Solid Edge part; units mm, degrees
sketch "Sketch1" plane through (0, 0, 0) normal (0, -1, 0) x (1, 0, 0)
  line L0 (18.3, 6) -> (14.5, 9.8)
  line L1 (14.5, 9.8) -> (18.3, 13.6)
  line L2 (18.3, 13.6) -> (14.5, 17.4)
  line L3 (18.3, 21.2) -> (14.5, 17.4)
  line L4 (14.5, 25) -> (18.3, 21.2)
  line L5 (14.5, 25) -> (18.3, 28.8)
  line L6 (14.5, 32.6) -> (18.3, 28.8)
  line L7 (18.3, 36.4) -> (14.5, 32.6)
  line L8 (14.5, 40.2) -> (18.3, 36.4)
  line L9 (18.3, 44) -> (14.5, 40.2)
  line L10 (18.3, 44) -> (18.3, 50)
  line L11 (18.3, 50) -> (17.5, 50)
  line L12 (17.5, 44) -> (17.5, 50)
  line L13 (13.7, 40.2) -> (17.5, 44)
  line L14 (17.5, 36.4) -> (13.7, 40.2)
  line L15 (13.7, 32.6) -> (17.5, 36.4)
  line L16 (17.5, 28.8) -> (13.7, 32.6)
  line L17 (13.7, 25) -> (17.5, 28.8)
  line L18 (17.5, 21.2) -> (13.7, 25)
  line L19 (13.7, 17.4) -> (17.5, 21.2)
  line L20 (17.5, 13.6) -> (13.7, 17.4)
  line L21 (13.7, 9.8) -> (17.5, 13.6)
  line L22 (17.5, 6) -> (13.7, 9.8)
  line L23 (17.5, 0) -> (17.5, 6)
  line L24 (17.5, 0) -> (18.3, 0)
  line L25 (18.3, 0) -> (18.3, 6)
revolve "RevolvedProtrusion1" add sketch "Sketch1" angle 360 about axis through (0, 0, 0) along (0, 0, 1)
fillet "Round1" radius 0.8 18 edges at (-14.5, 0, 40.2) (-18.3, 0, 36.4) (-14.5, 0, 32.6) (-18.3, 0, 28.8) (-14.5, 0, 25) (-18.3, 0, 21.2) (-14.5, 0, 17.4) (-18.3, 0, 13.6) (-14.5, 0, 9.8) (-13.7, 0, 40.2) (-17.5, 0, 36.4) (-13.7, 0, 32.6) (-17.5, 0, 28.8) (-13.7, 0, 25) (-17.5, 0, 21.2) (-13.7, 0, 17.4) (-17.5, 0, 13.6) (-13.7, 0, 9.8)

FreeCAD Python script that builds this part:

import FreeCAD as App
import Part
import Sketcher
from FreeCAD import Vector
Q = App.Units.Quantity


def edges_at(feature, points):
    """Names of the edges that pass closest to the given points."""
    edges = feature.Shape.Edges
    near = lambda p: min(range(len(edges)), key=lambda i: edges[i].distToShape(Part.Vertex(*p))[0])
    return sorted({f"Edge{near(p) + 1}" for p in points})

doc = App.newDocument("Part")
body = doc.addObject("PartDesign::Body", "Body")

# Sketch on XZ plane
sketch1 = doc.addObject("Sketcher::SketchObject", "Sketch")
body.addObject(sketch1)
sketch1.AttachmentSupport = (doc.XZ_Plane, [""])
sketch1.MapMode = "FlatFace"
sketch1.addGeometry([
    Part.LineSegment(Vector(18.3, 0, 0), Vector(18.3, 6, 0)),  # 0
    Part.LineSegment(Vector(18.3, 6, 0), Vector(14.5, 9.8, 0)),  # 1
    Part.LineSegment(Vector(14.5, 9.8, 0), Vector(18.3, 13.6, 0)),  # 2
    Part.LineSegment(Vector(18.3, 13.6, 0), Vector(14.5, 17.4, 0)),  # 3
    Part.LineSegment(Vector(14.5, 17.4, 0), Vector(18.3, 21.2, 0)),  # 4
    Part.LineSegment(Vector(18.3, 21.2, 0), Vector(14.5, 25, 0)),  # 5
    Part.LineSegment(Vector(14.5, 25, 0), Vector(18.3, 28.8, 0)),  # 6
    Part.LineSegment(Vector(18.3, 28.8, 0), Vector(14.5, 32.6, 0)),  # 7
    Part.LineSegment(Vector(14.5, 32.6, 0), Vector(18.3, 36.4, 0)),  # 8
    Part.LineSegment(Vector(18.3, 36.4, 0), Vector(14.5, 40.2, 0)),  # 9
    Part.LineSegment(Vector(14.5, 40.2, 0), Vector(18.3, 44, 0)),  # 10
    Part.LineSegment(Vector(18.3, 44, 0), Vector(18.3, 50, 0)),  # 11
    Part.LineSegment(Vector(18.3, 50, 0), Vector(17.5, 50, 0)),  # 12
    Part.LineSegment(Vector(17.5, 50, 0), Vector(17.5, 44, 0)),  # 13
    Part.LineSegment(Vector(17.5, 44, 0), Vector(13.7, 40.2, 0)),  # 14
    Part.LineSegment(Vector(13.7, 40.2, 0), Vector(17.5, 36.4, 0)),  # 15
    Part.LineSegment(Vector(17.5, 36.4, 0), Vector(13.7, 32.6, 0)),  # 16
    Part.LineSegment(Vector(13.7, 32.6, 0), Vector(17.5, 28.8, 0)),  # 17
    Part.LineSegment(Vector(17.5, 28.8, 0), Vector(13.7, 25, 0)),  # 18
    Part.LineSegment(Vector(13.7, 25, 0), Vector(17.5, 21.2, 0)),  # 19
    Part.LineSegment(Vector(17.5, 21.2, 0), Vector(13.7, 17.4, 0)),  # 20
    Part.LineSegment(Vector(13.7, 17.4, 0), Vector(17.5, 13.6, 0)),  # 21
    Part.LineSegment(Vector(17.5, 13.6, 0), Vector(13.7, 9.8, 0)),  # 22
    Part.LineSegment(Vector(13.7, 9.8, 0), Vector(17.5, 6, 0)),  # 23
    Part.LineSegment(Vector(17.5, 6, 0), Vector(17.5, 0, 0)),  # 24
    Part.LineSegment(Vector(17.5, 0, 0), Vector(18.3, 0, 0)),  # 25
], False)
sketch1.addConstraint([
    Sketcher.Constraint("Coincident", 0, 2, 1, 1),
    Sketcher.Constraint("Coincident", 1, 2, 2, 1),
    Sketcher.Constraint("Coincident", 2, 2, 3, 1),
    Sketcher.Constraint("Coincident", 3, 2, 4, 1),
    Sketcher.Constraint("Coincident", 4, 2, 5, 1),
    Sketcher.Constraint("Coincident", 5, 2, 6, 1),
    Sketcher.Constraint("Coincident", 6, 2, 7, 1),
    Sketcher.Constraint("Coincident", 7, 2, 8, 1),
    Sketcher.Constraint("Coincident", 8, 2, 9, 1),
    Sketcher.Constraint("Coincident", 9, 2, 10, 1),
    Sketcher.Constraint("Coincident", 10, 2, 11, 1),
    Sketcher.Constraint("Coincident", 11, 2, 12, 1),
    Sketcher.Constraint("Coincident", 12, 2, 13, 1),
    Sketcher.Constraint("Coincident", 13, 2, 14, 1),
    Sketcher.Constraint("Coincident", 14, 2, 15, 1),
    Sketcher.Constraint("Coincident", 15, 2, 16, 1),
    Sketcher.Constraint("Coincident", 16, 2, 17, 1),
    Sketcher.Constraint("Coincident", 17, 2, 18, 1),
    Sketcher.Constraint("Coincident", 18, 2, 19, 1),
    Sketcher.Constraint("Coincident", 19, 2, 20, 1),
    Sketcher.Constraint("Coincident", 20, 2, 21, 1),
    Sketcher.Constraint("Coincident", 21, 2, 22, 1),
    Sketcher.Constraint("Coincident", 22, 2, 23, 1),
    Sketcher.Constraint("Coincident", 23, 2, 24, 1),
    Sketcher.Constraint("Coincident", 24, 2, 25, 1),
    Sketcher.Constraint("Coincident", 25, 2, 0, 1),
    Sketcher.Constraint("Vertical", 0),
    Sketcher.Constraint("Vertical", 11),
    Sketcher.Constraint("Horizontal", 12),
    Sketcher.Constraint("Vertical", 13),
    Sketcher.Constraint("Vertical", 24),
    Sketcher.Constraint("Horizontal", 25),
    Sketcher.Constraint("PointOnObject", 24, 2, -1),
    Sketcher.Constraint("Perpendicular", 1, 2),
    Sketcher.Constraint("Perpendicular", 2, 3),
    Sketcher.Constraint("Perpendicular", 3, 4),
    Sketcher.Constraint("Perpendicular", 4, 5),
    Sketcher.Constraint("Perpendicular", 5, 6),
    Sketcher.Constraint("Perpendicular", 6, 7),
    Sketcher.Constraint("Perpendicular", 7, 8),
    Sketcher.Constraint("Perpendicular", 8, 9),
    Sketcher.Constraint("Perpendicular", 9, 10),
    Sketcher.Constraint("Parallel", 10, 14),
    Sketcher.Constraint("Perpendicular", 14, 15),
    Sketcher.Constraint("Perpendicular", 15, 16),
    Sketcher.Constraint("Perpendicular", 16, 17),
    Sketcher.Constraint("Perpendicular", 17, 18),
    Sketcher.Constraint("Perpendicular", 18, 19),
    Sketcher.Constraint("Perpendicular", 19, 20),
    Sketcher.Constraint("Perpendicular", 20, 21),
    Sketcher.Constraint("Perpendicular", 21, 22),
    Sketcher.Constraint("Perpendicular", 22, 23),
    Sketcher.Constraint("Horizontal", 10, 2, 13, 2),
    Sketcher.Constraint("Horizontal", 9, 2, 14, 2),
    Sketcher.Constraint("Horizontal", 8, 2, 15, 2),
    Sketcher.Constraint("Horizontal", 7, 2, 16, 2),
    Sketcher.Constraint("Horizontal", 6, 2, 17, 2),
    Sketcher.Constraint("Horizontal", 5, 2, 18, 2),
    Sketcher.Constraint("Horizontal", 4, 2, 19, 2),
    Sketcher.Constraint("Horizontal", 3, 2, 20, 2),
    Sketcher.Constraint("Horizontal", 2, 2, 21, 2),
    Sketcher.Constraint("Horizontal", 1, 2, 22, 2),
    Sketcher.Constraint("Horizontal", 0, 2, 23, 2),
    Sketcher.Constraint("Vertical", 0, 2, 2, 2),
    Sketcher.Constraint("Vertical", 1, 2, 3, 2),
    Sketcher.Constraint("Vertical", 2, 2, 4, 2),
    Sketcher.Constraint("Vertical", 3, 2, 5, 2),
    Sketcher.Constraint("Vertical", 4, 2, 6, 2),
    Sketcher.Constraint("Vertical", 5, 2, 7, 2),
    Sketcher.Constraint("Vertical", 6, 2, 8, 2),
    Sketcher.Constraint("Vertical", 7, 2, 9, 2),
    Sketcher.Constraint("Vertical", 8, 2, 10, 2),
    Sketcher.Constraint("Equal", 0, 11),
    Sketcher.Constraint("Equal", 1, 2),
    Sketcher.Constraint("DistanceY", 0, 1, 0, 2, Q("6 mm")),
    Sketcher.Constraint("DistanceX", 12, 2, 12, 1, Q("0.8 mm")),
    Sketcher.Constraint("DistanceY", -1, 1, 5, 2, Q("25 mm")),
    Sketcher.Constraint("DistanceX", -1, 1, 0, 2, Q("18.3 mm")),
])
revolution = doc.addObject("PartDesign::Revolution", "Revolution")
body.addObject(revolution)
revolution.Profile = sketch1
revolution.ReferenceAxis = (sketch1, ["V_Axis"])
revolution.Angle = 360
doc.recompute()

fillet = doc.addObject("PartDesign::Fillet", "Fillet")
body.addObject(fillet)
fillet.Base = (revolution, edges_at(revolution, [
    (-14.5, 0, 40.2),
    (-18.3, 0, 36.4),
    (-14.5, 0, 32.6),
    (-18.3, 0, 28.8),
    (-14.5, 0, 25),
    (-18.3, 0, 21.2),
    (-14.5, 0, 17.4),
    (-18.3, 0, 13.6),
    (-14.5, 0, 9.8),
    (-13.7, 0, 40.2),
    (-17.5, 0, 36.4),
    (-13.7, 0, 32.6),
    (-17.5, 0, 28.8),
    (-13.7, 0, 25),
    (-17.5, 0, 21.2),
    (-13.7, 0, 17.4),
    (-17.5, 0, 13.6),
    (-13.7, 0, 9.8),
]))
fillet.Radius = 0.8

doc.recompute()
